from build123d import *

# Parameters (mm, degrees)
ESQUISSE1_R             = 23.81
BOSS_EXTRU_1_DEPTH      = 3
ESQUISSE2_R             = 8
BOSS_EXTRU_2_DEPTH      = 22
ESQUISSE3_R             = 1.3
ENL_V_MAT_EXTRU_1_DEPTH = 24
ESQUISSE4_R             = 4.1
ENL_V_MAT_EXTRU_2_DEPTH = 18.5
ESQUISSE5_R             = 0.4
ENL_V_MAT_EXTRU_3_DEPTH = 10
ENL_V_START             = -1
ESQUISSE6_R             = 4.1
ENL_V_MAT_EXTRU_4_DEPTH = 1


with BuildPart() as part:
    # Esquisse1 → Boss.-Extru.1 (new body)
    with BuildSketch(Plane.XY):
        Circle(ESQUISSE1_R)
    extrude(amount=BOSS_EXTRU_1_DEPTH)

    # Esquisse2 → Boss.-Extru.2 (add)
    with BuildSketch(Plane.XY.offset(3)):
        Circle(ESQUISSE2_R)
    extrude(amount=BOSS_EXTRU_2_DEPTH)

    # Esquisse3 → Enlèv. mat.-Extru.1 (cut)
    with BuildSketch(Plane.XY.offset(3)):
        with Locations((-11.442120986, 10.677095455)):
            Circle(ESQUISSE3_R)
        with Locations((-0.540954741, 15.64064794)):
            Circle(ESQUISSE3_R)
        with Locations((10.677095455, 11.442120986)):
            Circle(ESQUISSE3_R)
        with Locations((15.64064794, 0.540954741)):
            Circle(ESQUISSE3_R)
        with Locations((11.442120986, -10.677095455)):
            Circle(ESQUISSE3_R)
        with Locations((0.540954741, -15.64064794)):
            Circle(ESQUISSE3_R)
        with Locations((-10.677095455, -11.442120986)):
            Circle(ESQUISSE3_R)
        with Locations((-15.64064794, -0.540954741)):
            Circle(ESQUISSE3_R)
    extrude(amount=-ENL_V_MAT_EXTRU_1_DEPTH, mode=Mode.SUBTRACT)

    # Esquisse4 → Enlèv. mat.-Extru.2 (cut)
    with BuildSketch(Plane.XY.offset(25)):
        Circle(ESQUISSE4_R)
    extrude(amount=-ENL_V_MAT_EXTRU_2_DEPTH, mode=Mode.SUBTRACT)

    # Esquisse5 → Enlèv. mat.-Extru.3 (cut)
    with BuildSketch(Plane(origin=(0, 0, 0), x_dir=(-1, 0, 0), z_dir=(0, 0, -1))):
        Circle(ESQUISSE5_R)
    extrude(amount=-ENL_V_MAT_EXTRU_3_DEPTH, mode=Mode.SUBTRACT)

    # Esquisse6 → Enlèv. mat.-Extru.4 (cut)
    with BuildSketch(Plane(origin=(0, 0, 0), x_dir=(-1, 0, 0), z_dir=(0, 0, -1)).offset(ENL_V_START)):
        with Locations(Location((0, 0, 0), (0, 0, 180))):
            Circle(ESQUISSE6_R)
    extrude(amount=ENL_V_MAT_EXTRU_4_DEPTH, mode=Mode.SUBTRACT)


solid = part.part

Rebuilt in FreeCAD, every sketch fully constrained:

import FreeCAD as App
import Part
import Sketcher
from FreeCAD import Vector
Q = App.Units.Quantity

doc = App.newDocument("Part")
body = doc.addObject("PartDesign::Body", "Body")

sketch1 = body.newObject("Sketcher::SketchObject", "Sketch")
sketch1.AttachmentSupport = (doc.getObject("XY_Plane"), [""])
sketch1.MapMode = "FlatFace"
sketch1.addGeometry(Part.Circle(Vector(0, 0, 0), Vector(0, 0, 1), 24), False)
sketch1.addConstraint(Sketcher.Constraint("Coincident", 0, 3, -1, 1))
sketch1.addConstraint(Sketcher.Constraint("Diameter", 0, Q("47.62 mm")))
pad1 = body.newObject("PartDesign::Pad", "Pad")
pad1.Profile = sketch1
pad1.Length = 3

sketch2 = body.newObject("Sketcher::SketchObject", "Sketch001")
sketch2.AttachmentSupport = (doc.getObject("XY_Plane"), [""])
sketch2.MapMode = "FlatFace"
sketch2.AttachmentOffset = App.Placement(Vector(0, 0, 3), App.Rotation())
sketch2.addGeometry(Part.Circle(Vector(0, 0, 0), Vector(0, 0, 1), 8), False)
sketch2.addConstraint(Sketcher.Constraint("Coincident", 0, 3, -1, 1))
sketch2.addConstraint(Sketcher.Constraint("Diameter", 0, Q("16 mm")))
pad2 = body.newObject("PartDesign::Pad", "Pad001")
pad2.Profile = sketch2
pad2.Length = 22

sketch3 = body.newObject("Sketcher::SketchObject", "Sketch002")
sketch3.AttachmentSupport = (doc.getObject("XY_Plane"), [""])
sketch3.MapMode = "FlatFace"
sketch3.AttachmentOffset = App.Placement(Vector(0, 0, 3), App.Rotation())
sketch3.addGeometry(Part.Circle(Vector(-11.4, 10.7, 0), Vector(0, 0, 1), 1.3), False)
sketch3.addGeometry(Part.Circle(Vector(-0.5, 15.6, 0), Vector(0, 0, 1), 1.3), False)
sketch3.addGeometry(Part.Circle(Vector(10.7, 11.4, 0), Vector(0, 0, 1), 1.3), False)
sketch3.addGeometry(Part.Circle(Vector(15.6, 0.5, 0), Vector(0, 0, 1), 1.3), False)
sketch3.addGeometry(Part.Circle(Vector(11.4, -10.7, 0), Vector(0, 0, 1), 1.3), False)
sketch3.addGeometry(Part.Circle(Vector(0.5, -15.6, 0), Vector(0, 0, 1), 1.3), False)
sketch3.addGeometry(Part.Circle(Vector(-10.7, -11.4, 0), Vector(0, 0, 1), 1.3), False)
sketch3.addGeometry(Part.Circle(Vector(-15.6, -0.5, 0), Vector(0, 0, 1), 1.3), False)
sketch3.addConstraint(Sketcher.Constraint("Equal", 0, 1))
sketch3.addConstraint(Sketcher.Constraint("Equal", 1, 2))
sketch3.addConstraint(Sketcher.Constraint("Equal", 2, 3))
sketch3.addConstraint(Sketcher.Constraint("Equal", 3, 4))
sketch3.addConstraint(Sketcher.Constraint("Equal", 4, 5))
sketch3.addConstraint(Sketcher.Constraint("Equal", 5, 6))
sketch3.addConstraint(Sketcher.Constraint("Equal", 6, 7))
sketch3.addConstraint(Sketcher.Constraint("Symmetric", 0, 3, 4, 3, -1, 1))
sketch3.addConstraint(Sketcher.Constraint("Symmetric", 1, 3, 5, 3, -1, 1))
sketch3.addConstraint(Sketcher.Constraint("Symmetric", 2, 3, 6, 3, -1, 1))
sketch3.addConstraint(Sketcher.Constraint("Symmetric", 3, 3, 7, 3, -1, 1))
sketch3.addConstraint(Sketcher.Constraint("Diameter", 0, Q("2.6 mm")))
sketch3.addConstraint(Sketcher.Constraint("DistanceX", 0, 3, -1, 1, Q("11.442121 mm")))
sketch3.addConstraint(Sketcher.Constraint("DistanceY", -1, 1, 2, 3, Q("11.442121 mm")))
sketch3.addConstraint(Sketcher.Constraint("DistanceX", 1, 3, 2, 3, Q("11.21805 mm")))
sketch3.addConstraint(Sketcher.Constraint("DistanceX", 0, 3, 3, 3, Q("27.082769 mm")))
sketch3.addConstraint(Sketcher.Constraint("DistanceY", 3, 3, 0, 3, Q("10.136141 mm")))
sketch3.addConstraint(Sketcher.Constraint("DistanceY", 4, 3, 3, 3, Q("11.21805 mm")))
sketch3.addConstraint(Sketcher.Constraint("DistanceX", 5, 3, 2, 3, Q("10.136141 mm")))
sketch3.addConstraint(Sketcher.Constraint("DistanceY", 5, 3, 2, 3, Q("27.082769 mm")))
pocket1 = body.newObject("PartDesign::Pocket", "Pocket")
pocket1.Profile = sketch3
pocket1.Length = 24

sketch4 = body.newObject("Sketcher::SketchObject", "Sketch003")
sketch4.AttachmentSupport = (doc.getObject("XY_Plane"), [""])
sketch4.MapMode = "FlatFace"
sketch4.AttachmentOffset = App.Placement(Vector(0, 0, 25), App.Rotation())
sketch4.addGeometry(Part.Circle(Vector(0, 0, 0), Vector(0, 0, 1), 4.1), False)
sketch4.addConstraint(Sketcher.Constraint("Coincident", 0, 3, -1, 1))
sketch4.addConstraint(Sketcher.Constraint("Diameter", 0, Q("8.2 mm")))
pocket2 = body.newObject("PartDesign::Pocket", "Pocket001")
pocket2.Profile = sketch4
pocket2.Length = 18.5

sketch5 = body.newObject("Sketcher::SketchObject", "Sketch004")
sketch5.AttachmentSupport = (doc.getObject("XY_Plane"), [""])
sketch5.MapMode = "FlatFace"
sketch5.addGeometry(Part.Circle(Vector(0, 0, 0), Vector(0, 0, 1), 0.4), False)
sketch5.addConstraint(Sketcher.Constraint("Coincident", 0, 3, -1, 1))
sketch5.addConstraint(Sketcher.Constraint("Diameter", 0, Q("0.8 mm")))
pocket3 = body.newObject("PartDesign::Pocket", "Pocket002")
pocket3.Profile = sketch5
pocket3.Length = 10
pocket3.Reversed = True

sketch6 = body.newObject("Sketcher::SketchObject", "Sketch005")
sketch6.AttachmentSupport = (doc.getObject("XY_Plane"), [""])
sketch6.MapMode = "FlatFace"
sketch6.AttachmentOffset = App.Placement(Vector(0, 0, 1), App.Rotation())
sketch6.addGeometry(Part.Circle(Vector(0, 0, 0), Vector(0, 0, 1), 4.1), False)
sketch6.addConstraint(Sketcher.Constraint("Coincident", 0, 3, -1, 1))
sketch6.addConstraint(Sketcher.Constraint("Diameter", 0, Q("8.2 mm")))
pocket4 = body.newObject("PartDesign::Pocket", "Pocket003")
pocket4.Profile = sketch6
pocket4.Length = 1

doc.recompute()
